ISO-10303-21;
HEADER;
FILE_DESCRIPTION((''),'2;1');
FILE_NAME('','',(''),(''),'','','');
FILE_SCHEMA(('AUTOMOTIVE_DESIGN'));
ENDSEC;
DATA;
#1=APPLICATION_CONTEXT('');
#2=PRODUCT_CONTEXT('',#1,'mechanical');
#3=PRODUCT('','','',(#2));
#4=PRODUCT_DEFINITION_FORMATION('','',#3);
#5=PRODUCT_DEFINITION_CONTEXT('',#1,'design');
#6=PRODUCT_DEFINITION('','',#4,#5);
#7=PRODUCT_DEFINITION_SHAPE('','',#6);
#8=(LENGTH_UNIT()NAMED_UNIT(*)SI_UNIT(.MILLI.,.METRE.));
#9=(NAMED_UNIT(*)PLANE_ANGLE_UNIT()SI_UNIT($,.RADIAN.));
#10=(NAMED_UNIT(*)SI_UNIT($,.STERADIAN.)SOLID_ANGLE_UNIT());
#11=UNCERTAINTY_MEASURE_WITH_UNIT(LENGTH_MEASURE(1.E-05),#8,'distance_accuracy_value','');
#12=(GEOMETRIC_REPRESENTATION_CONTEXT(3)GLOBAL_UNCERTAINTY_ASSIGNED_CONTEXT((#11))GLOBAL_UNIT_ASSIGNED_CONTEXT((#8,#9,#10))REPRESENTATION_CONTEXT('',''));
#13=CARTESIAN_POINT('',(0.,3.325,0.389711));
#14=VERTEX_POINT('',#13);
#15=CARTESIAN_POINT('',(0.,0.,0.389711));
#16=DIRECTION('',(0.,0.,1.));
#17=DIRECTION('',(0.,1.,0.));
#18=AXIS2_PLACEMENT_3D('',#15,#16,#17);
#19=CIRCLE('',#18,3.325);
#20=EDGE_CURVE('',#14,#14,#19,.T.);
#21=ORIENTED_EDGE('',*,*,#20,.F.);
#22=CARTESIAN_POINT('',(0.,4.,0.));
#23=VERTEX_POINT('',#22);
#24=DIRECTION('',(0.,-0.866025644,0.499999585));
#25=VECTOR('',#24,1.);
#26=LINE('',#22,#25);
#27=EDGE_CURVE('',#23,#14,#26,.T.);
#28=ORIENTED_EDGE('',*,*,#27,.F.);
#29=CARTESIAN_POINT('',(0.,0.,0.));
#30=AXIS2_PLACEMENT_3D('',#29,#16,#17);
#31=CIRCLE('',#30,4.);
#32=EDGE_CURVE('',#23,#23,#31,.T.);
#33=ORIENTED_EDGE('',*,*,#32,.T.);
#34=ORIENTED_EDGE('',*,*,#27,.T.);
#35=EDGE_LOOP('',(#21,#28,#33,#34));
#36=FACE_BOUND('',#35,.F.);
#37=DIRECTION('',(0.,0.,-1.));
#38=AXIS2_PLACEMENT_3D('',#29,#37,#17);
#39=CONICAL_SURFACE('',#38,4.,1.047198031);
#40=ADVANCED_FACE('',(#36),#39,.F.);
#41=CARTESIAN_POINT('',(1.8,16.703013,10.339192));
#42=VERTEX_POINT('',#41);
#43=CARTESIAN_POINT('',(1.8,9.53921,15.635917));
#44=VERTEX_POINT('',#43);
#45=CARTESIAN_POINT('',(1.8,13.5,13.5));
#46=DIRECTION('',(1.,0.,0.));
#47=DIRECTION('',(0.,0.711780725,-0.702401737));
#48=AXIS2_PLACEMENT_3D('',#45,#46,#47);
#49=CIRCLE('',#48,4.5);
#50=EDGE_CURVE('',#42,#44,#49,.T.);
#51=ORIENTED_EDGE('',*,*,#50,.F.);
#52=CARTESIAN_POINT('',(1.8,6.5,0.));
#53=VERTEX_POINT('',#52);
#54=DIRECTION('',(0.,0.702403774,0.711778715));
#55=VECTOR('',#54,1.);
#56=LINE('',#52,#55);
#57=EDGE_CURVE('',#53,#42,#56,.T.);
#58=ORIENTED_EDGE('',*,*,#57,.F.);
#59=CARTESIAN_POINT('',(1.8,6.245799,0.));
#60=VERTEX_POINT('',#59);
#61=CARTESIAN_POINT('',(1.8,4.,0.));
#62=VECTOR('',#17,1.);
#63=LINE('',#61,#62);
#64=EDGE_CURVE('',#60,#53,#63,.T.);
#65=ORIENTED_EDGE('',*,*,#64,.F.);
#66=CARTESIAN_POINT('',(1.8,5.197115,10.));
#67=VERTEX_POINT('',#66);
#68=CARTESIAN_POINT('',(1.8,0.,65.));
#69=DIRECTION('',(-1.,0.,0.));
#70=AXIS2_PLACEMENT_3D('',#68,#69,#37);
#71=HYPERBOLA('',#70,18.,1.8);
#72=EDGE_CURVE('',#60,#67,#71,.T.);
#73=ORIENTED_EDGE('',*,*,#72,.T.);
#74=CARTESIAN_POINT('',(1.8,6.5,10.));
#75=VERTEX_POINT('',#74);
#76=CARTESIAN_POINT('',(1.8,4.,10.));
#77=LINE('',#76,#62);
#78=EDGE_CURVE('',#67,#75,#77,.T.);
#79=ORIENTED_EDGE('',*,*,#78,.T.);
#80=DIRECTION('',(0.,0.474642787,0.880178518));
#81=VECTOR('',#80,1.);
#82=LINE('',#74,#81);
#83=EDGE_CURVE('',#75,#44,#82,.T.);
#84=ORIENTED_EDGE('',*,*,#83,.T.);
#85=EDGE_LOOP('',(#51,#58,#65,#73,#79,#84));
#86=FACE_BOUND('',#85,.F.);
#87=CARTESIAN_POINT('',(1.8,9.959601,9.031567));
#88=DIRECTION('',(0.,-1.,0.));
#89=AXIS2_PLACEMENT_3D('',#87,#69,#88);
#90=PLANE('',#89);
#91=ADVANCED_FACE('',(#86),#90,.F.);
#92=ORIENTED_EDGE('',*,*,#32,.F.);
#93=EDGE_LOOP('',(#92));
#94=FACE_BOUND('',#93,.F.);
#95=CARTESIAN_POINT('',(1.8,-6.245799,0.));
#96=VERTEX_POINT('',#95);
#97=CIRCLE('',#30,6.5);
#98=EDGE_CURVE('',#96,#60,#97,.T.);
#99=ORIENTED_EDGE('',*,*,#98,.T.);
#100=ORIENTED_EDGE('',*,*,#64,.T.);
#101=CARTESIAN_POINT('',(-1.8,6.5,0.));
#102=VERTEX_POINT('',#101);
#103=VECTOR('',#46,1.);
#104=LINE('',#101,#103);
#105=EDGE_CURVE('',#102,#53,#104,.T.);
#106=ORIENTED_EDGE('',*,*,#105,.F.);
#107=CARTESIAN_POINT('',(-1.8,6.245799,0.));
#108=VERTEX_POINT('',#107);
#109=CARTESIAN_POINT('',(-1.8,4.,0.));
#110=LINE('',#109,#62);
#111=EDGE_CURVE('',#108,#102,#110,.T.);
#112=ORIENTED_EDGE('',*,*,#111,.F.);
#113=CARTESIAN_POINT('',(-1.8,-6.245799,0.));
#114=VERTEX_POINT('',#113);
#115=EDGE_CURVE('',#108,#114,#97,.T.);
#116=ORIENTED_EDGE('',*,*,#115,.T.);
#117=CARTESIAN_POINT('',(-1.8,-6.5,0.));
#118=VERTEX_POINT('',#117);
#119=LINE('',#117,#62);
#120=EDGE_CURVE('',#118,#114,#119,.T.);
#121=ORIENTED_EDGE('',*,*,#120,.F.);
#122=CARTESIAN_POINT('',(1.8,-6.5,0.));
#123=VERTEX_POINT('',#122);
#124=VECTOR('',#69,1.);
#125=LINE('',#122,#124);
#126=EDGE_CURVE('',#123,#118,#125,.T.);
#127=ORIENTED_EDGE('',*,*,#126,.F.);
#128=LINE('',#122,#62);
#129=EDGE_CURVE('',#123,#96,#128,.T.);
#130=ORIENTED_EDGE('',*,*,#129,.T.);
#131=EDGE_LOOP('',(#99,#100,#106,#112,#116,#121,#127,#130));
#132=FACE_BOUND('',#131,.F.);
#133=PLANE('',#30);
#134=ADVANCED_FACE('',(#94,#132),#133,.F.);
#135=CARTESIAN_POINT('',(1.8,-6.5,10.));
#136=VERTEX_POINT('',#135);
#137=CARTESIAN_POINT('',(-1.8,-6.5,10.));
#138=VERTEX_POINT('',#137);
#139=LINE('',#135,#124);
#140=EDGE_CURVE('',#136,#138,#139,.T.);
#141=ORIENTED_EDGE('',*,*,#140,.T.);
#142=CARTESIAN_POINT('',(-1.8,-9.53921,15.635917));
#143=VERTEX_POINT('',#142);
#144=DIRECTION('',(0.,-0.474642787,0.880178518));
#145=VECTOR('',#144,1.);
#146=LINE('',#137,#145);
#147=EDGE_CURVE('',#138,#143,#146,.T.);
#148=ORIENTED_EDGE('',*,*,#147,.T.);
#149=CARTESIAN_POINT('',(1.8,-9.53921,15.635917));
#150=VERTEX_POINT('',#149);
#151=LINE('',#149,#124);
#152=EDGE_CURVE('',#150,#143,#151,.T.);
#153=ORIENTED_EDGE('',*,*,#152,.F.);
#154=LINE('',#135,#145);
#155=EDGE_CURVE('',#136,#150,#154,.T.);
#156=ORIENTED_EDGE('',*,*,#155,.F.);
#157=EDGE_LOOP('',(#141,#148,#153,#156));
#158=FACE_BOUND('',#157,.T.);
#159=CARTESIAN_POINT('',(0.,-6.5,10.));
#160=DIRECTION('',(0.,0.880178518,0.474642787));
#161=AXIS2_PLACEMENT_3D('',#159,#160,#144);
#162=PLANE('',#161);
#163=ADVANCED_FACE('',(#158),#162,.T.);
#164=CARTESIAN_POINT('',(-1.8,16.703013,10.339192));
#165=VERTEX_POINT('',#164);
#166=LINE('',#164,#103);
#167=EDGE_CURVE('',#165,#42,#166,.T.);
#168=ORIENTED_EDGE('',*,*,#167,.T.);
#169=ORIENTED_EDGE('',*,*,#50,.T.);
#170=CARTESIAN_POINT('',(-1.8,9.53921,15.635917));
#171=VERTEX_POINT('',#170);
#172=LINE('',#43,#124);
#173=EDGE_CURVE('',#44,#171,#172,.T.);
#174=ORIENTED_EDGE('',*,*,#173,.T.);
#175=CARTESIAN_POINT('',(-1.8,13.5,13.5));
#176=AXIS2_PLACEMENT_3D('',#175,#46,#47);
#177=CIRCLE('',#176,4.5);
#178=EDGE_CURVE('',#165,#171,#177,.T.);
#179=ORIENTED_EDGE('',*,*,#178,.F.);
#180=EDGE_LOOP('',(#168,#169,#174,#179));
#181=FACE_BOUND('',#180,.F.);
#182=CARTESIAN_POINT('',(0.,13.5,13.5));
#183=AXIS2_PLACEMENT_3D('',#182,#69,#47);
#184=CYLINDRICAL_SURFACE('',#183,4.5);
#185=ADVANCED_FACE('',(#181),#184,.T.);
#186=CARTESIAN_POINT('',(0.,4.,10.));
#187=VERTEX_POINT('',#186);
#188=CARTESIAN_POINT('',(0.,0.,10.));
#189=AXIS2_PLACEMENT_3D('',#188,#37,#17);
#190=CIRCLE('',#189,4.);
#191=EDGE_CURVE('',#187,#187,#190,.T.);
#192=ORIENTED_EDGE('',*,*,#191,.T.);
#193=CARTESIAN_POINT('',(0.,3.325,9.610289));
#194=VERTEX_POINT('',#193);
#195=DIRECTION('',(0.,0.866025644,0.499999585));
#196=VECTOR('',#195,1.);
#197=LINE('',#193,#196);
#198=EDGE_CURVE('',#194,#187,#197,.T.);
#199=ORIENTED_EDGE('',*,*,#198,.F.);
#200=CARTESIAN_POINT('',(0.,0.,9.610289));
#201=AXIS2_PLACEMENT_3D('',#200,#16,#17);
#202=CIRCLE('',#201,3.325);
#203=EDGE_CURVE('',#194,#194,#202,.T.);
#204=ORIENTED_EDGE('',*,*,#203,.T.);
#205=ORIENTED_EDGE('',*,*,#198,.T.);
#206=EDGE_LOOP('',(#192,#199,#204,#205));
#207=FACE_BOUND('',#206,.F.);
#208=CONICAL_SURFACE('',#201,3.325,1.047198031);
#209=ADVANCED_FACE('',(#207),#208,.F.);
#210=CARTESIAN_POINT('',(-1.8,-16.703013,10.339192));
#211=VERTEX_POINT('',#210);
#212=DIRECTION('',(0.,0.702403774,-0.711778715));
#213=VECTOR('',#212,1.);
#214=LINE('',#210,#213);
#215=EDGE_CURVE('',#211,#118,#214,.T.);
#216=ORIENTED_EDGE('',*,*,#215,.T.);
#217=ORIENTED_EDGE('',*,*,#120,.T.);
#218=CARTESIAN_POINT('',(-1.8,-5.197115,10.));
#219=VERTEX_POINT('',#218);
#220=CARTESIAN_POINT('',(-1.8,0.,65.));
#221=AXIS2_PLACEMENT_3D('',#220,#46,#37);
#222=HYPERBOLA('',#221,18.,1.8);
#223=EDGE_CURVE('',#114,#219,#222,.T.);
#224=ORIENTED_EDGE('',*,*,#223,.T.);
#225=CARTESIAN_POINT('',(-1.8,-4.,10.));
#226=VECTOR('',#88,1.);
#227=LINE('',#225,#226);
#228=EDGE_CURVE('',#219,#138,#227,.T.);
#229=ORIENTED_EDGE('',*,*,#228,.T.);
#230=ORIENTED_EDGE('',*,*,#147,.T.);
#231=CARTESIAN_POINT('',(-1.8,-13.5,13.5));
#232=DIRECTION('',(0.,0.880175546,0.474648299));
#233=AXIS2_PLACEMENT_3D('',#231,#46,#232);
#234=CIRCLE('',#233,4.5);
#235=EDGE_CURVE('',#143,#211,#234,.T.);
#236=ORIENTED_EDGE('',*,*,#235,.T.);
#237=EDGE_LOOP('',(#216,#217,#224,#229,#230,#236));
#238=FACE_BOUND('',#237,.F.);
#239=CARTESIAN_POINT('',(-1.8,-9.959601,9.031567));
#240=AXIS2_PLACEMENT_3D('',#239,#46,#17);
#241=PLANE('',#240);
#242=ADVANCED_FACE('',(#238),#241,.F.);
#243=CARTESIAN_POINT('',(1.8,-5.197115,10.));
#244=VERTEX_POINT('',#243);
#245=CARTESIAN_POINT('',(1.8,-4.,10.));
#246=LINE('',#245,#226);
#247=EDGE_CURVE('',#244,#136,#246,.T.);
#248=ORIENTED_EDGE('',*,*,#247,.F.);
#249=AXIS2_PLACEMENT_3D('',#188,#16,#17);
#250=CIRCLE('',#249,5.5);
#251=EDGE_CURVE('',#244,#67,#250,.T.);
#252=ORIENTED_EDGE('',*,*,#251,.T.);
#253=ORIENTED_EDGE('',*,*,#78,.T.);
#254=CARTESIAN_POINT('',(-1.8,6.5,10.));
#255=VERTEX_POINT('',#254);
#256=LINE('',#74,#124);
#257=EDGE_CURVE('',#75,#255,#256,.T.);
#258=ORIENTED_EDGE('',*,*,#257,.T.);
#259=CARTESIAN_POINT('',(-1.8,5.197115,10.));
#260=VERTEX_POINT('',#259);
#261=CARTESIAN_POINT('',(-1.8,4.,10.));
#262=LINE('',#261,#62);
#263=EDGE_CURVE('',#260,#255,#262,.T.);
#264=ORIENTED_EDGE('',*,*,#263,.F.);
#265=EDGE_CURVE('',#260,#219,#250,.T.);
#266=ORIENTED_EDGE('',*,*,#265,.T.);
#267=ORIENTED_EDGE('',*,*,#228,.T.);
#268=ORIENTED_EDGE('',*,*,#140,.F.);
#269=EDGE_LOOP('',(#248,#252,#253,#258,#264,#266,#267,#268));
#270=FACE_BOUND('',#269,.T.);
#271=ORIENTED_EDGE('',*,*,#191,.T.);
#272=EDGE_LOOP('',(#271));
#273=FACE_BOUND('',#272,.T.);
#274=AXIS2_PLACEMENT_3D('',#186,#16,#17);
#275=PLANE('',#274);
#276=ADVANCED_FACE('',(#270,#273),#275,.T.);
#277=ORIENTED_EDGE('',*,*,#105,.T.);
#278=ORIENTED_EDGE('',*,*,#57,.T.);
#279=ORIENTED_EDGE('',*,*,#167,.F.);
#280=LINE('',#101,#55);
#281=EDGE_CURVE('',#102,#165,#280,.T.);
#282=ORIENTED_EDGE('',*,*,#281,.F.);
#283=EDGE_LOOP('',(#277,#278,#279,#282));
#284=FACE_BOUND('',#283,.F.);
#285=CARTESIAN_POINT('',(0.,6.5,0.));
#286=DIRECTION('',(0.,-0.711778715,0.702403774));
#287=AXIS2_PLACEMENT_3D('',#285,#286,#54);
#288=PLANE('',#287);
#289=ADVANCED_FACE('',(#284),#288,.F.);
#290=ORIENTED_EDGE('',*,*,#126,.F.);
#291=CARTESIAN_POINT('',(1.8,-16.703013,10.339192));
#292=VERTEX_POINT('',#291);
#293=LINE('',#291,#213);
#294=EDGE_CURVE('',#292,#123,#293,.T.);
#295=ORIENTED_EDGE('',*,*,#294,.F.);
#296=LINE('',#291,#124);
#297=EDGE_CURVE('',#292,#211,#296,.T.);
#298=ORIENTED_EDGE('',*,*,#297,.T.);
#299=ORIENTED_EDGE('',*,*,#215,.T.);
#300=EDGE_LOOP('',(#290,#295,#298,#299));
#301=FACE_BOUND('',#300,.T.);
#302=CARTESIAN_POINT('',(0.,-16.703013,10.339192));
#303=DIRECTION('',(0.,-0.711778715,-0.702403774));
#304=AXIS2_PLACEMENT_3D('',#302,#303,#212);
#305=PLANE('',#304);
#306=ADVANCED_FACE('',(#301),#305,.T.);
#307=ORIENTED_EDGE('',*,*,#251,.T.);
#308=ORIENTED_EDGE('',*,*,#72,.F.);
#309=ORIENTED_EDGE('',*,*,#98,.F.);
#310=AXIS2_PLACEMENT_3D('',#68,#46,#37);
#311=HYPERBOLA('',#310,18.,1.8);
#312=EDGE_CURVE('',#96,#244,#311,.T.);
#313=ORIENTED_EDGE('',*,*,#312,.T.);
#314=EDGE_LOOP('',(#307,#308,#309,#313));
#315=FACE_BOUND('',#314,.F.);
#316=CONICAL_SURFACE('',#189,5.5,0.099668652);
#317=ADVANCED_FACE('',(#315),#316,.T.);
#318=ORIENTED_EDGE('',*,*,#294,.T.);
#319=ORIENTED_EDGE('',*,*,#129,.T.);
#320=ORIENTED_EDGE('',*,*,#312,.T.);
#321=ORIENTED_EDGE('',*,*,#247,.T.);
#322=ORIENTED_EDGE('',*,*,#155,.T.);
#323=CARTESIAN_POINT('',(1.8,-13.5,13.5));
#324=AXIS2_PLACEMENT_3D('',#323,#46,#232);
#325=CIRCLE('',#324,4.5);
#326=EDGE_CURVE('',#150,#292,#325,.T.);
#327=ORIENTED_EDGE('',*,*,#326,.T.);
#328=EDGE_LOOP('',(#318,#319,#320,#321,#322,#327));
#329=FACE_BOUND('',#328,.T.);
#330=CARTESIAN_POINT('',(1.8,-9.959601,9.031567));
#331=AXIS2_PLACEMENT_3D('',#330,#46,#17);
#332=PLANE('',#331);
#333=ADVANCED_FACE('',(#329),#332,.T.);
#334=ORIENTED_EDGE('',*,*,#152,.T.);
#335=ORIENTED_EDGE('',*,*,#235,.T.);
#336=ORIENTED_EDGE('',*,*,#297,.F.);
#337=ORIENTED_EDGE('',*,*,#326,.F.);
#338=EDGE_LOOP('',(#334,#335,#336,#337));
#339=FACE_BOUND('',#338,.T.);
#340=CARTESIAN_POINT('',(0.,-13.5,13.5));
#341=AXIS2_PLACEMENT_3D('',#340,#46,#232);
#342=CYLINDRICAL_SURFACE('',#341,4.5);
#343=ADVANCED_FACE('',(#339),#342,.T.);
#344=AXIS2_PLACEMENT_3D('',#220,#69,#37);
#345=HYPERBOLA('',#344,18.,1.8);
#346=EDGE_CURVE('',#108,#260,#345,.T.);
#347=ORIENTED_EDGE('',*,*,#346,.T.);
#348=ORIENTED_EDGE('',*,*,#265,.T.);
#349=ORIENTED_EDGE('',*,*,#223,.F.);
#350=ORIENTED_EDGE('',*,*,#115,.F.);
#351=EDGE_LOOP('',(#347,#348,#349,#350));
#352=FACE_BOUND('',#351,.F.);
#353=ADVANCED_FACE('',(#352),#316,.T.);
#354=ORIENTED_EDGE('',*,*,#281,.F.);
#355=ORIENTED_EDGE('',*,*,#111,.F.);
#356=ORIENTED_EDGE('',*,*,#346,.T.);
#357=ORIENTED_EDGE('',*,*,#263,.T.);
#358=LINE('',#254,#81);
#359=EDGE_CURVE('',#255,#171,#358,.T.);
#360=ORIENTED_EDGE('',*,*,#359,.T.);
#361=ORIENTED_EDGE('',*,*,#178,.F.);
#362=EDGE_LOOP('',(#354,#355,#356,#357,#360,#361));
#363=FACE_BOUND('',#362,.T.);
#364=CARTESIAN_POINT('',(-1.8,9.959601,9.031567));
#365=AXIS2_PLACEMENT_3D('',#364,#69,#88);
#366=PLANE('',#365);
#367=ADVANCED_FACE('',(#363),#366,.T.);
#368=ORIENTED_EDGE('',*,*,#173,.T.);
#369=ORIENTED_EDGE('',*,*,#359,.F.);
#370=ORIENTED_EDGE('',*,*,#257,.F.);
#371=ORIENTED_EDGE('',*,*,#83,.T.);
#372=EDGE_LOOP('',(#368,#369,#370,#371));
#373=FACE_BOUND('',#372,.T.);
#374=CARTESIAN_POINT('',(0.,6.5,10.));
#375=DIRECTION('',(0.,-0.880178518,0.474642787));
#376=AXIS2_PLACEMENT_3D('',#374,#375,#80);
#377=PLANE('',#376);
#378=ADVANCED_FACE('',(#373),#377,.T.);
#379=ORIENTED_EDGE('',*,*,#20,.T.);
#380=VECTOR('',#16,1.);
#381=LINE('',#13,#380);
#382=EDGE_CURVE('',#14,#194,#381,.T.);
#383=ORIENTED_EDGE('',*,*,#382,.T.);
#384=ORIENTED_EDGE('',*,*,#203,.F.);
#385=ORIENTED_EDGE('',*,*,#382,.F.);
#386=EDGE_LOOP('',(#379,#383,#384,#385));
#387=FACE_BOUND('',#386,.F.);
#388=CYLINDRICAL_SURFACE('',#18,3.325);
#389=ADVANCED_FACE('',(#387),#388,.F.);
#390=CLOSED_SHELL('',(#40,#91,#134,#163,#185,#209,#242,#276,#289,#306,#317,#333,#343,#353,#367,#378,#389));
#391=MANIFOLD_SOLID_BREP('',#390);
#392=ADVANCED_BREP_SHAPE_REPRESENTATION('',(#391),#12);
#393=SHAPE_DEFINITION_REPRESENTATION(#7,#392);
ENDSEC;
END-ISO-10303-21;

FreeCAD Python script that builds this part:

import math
import FreeCAD as App
import Part
import Sketcher
Q = App.Units.Quantity

doc = App.newDocument("Part")
body = doc.addObject("PartDesign::Body", "Body")
body.AllowCompound = True

sketch1 = doc.addObject("Sketcher::SketchObject", "Sketch")
body.addObject(sketch1)
sketch1.AttachmentSupport = (doc.YZ_Plane, [""])
sketch1.MapMode = "FlatFace"
sketch1.addGeometry([
    Part.LineSegment(App.Vector(4, 10, 0), App.Vector(4, 0, 0)),
    Part.LineSegment(App.Vector(4, 0, 0), App.Vector(6.5, 0, 0)),
    Part.LineSegment(App.Vector(6.5, 0, 0), App.Vector(16.7, 10.3, 0)),
    Part.ArcOfCircle(Part.Circle(App.Vector(13.5, 13.5, 0), App.Vector(0, 0, 1), 4.5), math.radians(-45), math.radians(152)),
    Part.LineSegment(App.Vector(9.5, 15.6, 0), App.Vector(6.5, 10, 0)),
    Part.LineSegment(App.Vector(6.5, 10, 0), App.Vector(4, 10, 0)),
    Part.LineSegment(App.Vector(-16.7, 10.3, 0), App.Vector(-6.5, 0, 0)),
    Part.LineSegment(App.Vector(-6.5, 0, 0), App.Vector(-4, 0, 0)),
    Part.LineSegment(App.Vector(-4, 0, 0), App.Vector(-4, 10, 0)),
    Part.LineSegment(App.Vector(-4, 10, 0), App.Vector(-6.5, 10, 0)),
    Part.LineSegment(App.Vector(-6.5, 10, 0), App.Vector(-9.5, 15.6, 0)),
    Part.ArcOfCircle(Part.Circle(App.Vector(-13.5, 13.5, 0), App.Vector(0, 0, 1), 4.5), math.radians(28), math.radians(225)),
], False)
sketch1.addConstraint([
    Sketcher.Constraint("Coincident", 0, 2, 1, 1),
    Sketcher.Constraint("Coincident", 1, 2, 2, 1),
    Sketcher.Constraint("Coincident", 2, 2, 3, 1),
    Sketcher.Constraint("Coincident", 3, 2, 4, 1),
    Sketcher.Constraint("Coincident", 4, 2, 5, 1),
    Sketcher.Constraint("Coincident", 5, 2, 0, 1),
    Sketcher.Constraint("Coincident", 6, 2, 7, 1),
    Sketcher.Constraint("Coincident", 7, 2, 8, 1),
    Sketcher.Constraint("Coincident", 8, 2, 9, 1),
    Sketcher.Constraint("Coincident", 9, 2, 10, 1),
    Sketcher.Constraint("Coincident", 10, 2, 11, 1),
    Sketcher.Constraint("Coincident", 11, 2, 6, 1),
    Sketcher.Constraint("Vertical", 0),
    Sketcher.Constraint("Horizontal", 1),
    Sketcher.Constraint("Horizontal", 5),
    Sketcher.Constraint("Horizontal", 7),
    Sketcher.Constraint("Vertical", 8),
    Sketcher.Constraint("Horizontal", 9),
    Sketcher.Constraint("Equal", 3, 11),
    Sketcher.Constraint("Symmetric", 1, 2, 6, 2, -1, 1),
    Sketcher.Constraint("Symmetric", 3, 3, 11, 3, -2),
    Sketcher.Constraint("Symmetric", 0, 2, 7, 2, -2),
    Sketcher.Constraint("Symmetric", 4, 2, 9, 2, -2),
    Sketcher.Constraint("Horizontal", 3, 2, 10, 2),
    Sketcher.Constraint("Horizontal", 2, 2, 11, 2),
    Sketcher.Constraint("Vertical", 1, 2, 4, 2),
    Sketcher.Constraint("Radius", 3, Q("4.5 mm")),
    Sketcher.Constraint("DistanceY", 0, 2, 0, 1, Q("10 mm")),
    Sketcher.Constraint("DistanceX", 1, 1, 1, 2, Q("2.5 mm")),
    Sketcher.Constraint("DistanceX", -1, 1, 0, 2, Q("4 mm")),
    Sketcher.Constraint("DistanceX", 11, 3, 3, 3, Q("27 mm")),
    Sketcher.Constraint("DistanceY", -1, 1, 3, 3, Q("13.5 mm")),
    Sketcher.Constraint("Distance", 2, Q("14.525852 mm")),
    Sketcher.Constraint("DistanceX", -1, 1, 3, 2, Q("9.53921 mm")),
])
pad1 = doc.addObject("PartDesign::Pad", "Pad")
body.addObject(pad1)
pad1.Profile = sketch1
pad1.Length = 3.6
pad1.Midplane = True
body2 = doc.addObject("PartDesign::Body", "Body001")

sketch2 = doc.addObject("Sketcher::SketchObject", "Sketch001")
body2.addObject(sketch2)
sketch2.AttachmentSupport = (doc.getObject("YZ_Plane001"), [""])
sketch2.MapMode = "FlatFace"
sketch2.addGeometry([
    Part.LineSegment(App.Vector(3.3, 0.4, 0), App.Vector(4, 0, 0)),
    Part.LineSegment(App.Vector(4, 0, 0), App.Vector(6.5, 0, 0)),
    Part.LineSegment(App.Vector(6.5, 0, 0), App.Vector(5.5, 10, 0)),
    Part.LineSegment(App.Vector(5.5, 10, 0), App.Vector(4, 10, 0)),
    Part.LineSegment(App.Vector(4, 10, 0), App.Vector(3.3, 9.6, 0)),
    Part.LineSegment(App.Vector(3.3, 9.6, 0), App.Vector(3.3, 0.4, 0)),
], False)
sketch2.addConstraint([
    Sketcher.Constraint("Coincident", 0, 2, 1, 1),
    Sketcher.Constraint("Coincident", 1, 2, 2, 1),
    Sketcher.Constraint("Coincident", 2, 2, 3, 1),
    Sketcher.Constraint("Coincident", 3, 2, 4, 1),
    Sketcher.Constraint("Coincident", 4, 2, 5, 1),
    Sketcher.Constraint("Coincident", 5, 2, 0, 1),
    Sketcher.Constraint("Horizontal", 1),
    Sketcher.Constraint("Horizontal", 3),
    Sketcher.Constraint("Vertical", 5),
    Sketcher.Constraint("PointOnObject", 0, 2, -1),
    Sketcher.Constraint("Vertical", 0, 2, 3, 2),
    Sketcher.Constraint("Equal", 0, 4),
    Sketcher.Constraint("DistanceX", 1, 1, 1, 2, Q("2.5 mm")),
    Sketcher.Constraint("DistanceX", 3, 2, 3, 1, Q("1.5 mm")),
    Sketcher.Constraint("DistanceX", -1, 1, 0, 2, Q("4 mm")),
    Sketcher.Constraint("DistanceY", -1, 1, 2, 2, Q("10 mm")),
    Sketcher.Constraint("DistanceX", -1, 1, 4, 2, Q("3.325 mm")),
    Sketcher.Constraint("DistanceY", 5, 2, 5, 1, Q("9.220578 mm")),
])
revolution = doc.addObject("PartDesign::Revolution", "Revolution")
body2.addObject(revolution)
revolution.Profile = sketch2
revolution.ReferenceAxis = (sketch2, ["V_Axis"])
revolution.Angle = 360
doc.recompute()

boolean = doc.addObject("PartDesign::Boolean", "Boolean")
body2.addObject(boolean)
boolean.Type = "Fuse"
boolean.addObjects([body])

doc.recompute()
